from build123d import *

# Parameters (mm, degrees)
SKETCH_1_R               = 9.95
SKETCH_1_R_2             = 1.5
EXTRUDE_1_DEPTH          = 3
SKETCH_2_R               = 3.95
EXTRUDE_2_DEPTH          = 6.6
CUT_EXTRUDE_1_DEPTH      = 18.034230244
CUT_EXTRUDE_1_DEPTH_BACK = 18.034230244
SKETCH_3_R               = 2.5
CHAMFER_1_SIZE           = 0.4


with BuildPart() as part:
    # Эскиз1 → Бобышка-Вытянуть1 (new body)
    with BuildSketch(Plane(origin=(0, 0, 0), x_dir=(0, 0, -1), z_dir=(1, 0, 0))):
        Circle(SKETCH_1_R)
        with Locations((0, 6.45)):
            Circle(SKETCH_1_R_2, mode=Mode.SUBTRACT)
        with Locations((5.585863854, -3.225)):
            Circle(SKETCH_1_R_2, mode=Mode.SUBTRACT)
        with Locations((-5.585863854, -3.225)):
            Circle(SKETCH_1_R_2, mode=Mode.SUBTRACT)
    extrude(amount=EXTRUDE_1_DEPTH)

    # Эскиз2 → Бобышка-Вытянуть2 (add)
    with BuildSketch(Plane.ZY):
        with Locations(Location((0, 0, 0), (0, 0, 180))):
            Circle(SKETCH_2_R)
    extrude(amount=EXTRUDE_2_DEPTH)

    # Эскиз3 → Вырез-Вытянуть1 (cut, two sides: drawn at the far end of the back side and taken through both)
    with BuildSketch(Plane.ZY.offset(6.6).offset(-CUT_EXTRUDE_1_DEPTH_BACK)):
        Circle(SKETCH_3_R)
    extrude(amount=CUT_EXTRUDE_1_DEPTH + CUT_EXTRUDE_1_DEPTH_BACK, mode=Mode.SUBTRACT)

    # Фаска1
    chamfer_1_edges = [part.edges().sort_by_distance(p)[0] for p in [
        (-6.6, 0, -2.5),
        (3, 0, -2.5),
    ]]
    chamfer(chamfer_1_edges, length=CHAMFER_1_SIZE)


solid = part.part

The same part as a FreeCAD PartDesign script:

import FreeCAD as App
import Part
import Sketcher
from FreeCAD import Vector
Q = App.Units.Quantity


def edges_at(feature, points):
    """Names of the edges that pass closest to the given points."""
    edges = feature.Shape.Edges
    near = lambda p: min(range(len(edges)), key=lambda i: edges[i].distToShape(Part.Vertex(*p))[0])
    return sorted({f"Edge{near(p) + 1}" for p in points})

doc = App.newDocument("Part")
body = doc.addObject("PartDesign::Body", "Body")

sketch1 = body.newObject("Sketcher::SketchObject", "Sketch")
sketch1.AttachmentSupport = (doc.getObject("YZ_Plane"), [""])
sketch1.MapMode = "FlatFace"
sketch1.addGeometry([
    Part.Circle(Vector(0, 0, 0), Vector(0, 0, 1), 9.9),
    Part.Circle(Vector(-3.2, 5.6, 0), Vector(0, 0, 1), 1.5),
    Part.Circle(Vector(-3.2, -5.6, 0), Vector(0, 0, 1), 1.5),
    Part.Circle(Vector(6.5, 0, 0), Vector(0, 0, 1), 1.5),
], False)
sketch1.addConstraint([
    Sketcher.Constraint("Coincident", 0, 3, -1, 1),
    Sketcher.Constraint("Equal", 1, 2),
    Sketcher.Constraint("Equal", 2, 3),
    Sketcher.Constraint("Symmetric", 1, 3, 2, 3, -1),
    Sketcher.Constraint("PointOnObject", 3, 3, -1),
    Sketcher.Constraint("Diameter", 1, Q("3 mm")),
    Sketcher.Constraint("Diameter", 0, Q("19.9 mm")),
    Sketcher.Constraint("DistanceX", -1, 1, 3, 3, Q("6.45 mm")),
    Sketcher.Constraint("DistanceX", 1, 3, -1, 1, Q("3.225 mm")),
    Sketcher.Constraint("DistanceY", -1, 1, 1, 3, Q("5.585864 mm")),
])
pad1 = body.newObject("PartDesign::Pad", "Pad")
pad1.Profile = sketch1
pad1.Length = 3

sketch2 = body.newObject("Sketcher::SketchObject", "Sketch001")
sketch2.AttachmentSupport = (doc.getObject("YZ_Plane"), [""])
sketch2.MapMode = "FlatFace"
sketch2.addGeometry(Part.Circle(Vector(0, 0, 0), Vector(0, 0, 1), 4), False)
sketch2.addConstraint([
    Sketcher.Constraint("Coincident", 0, 3, -1, 1),
    Sketcher.Constraint("Diameter", 0, Q("7.9 mm")),
])
pad2 = body.newObject("PartDesign::Pad", "Pad001")
pad2.Profile = sketch2
pad2.Length = 6.6
pad2.Reversed = True

sketch3 = body.newObject("Sketcher::SketchObject", "Sketch002")
sketch3.AttachmentSupport = (doc.getObject("YZ_Plane"), [""])
sketch3.MapMode = "FlatFace"
sketch3.AttachmentOffset = App.Placement(Vector(0, 0, -6.6), App.Rotation())
sketch3.addGeometry(Part.Circle(Vector(0, 0, 0), Vector(0, 0, 1), 2.5), False)
sketch3.addConstraint([
    Sketcher.Constraint("Coincident", 0, 3, -1, 1),
    Sketcher.Constraint("Diameter", 0, Q("5 mm")),
])
pocket1 = body.newObject("PartDesign::Pocket", "Pocket")
pocket1.Profile = sketch3
pocket1.Type = "ThroughAll"
pocket1.Midplane = True
doc.recompute()

chamfer = body.newObject("PartDesign::Chamfer", "Chamfer")
chamfer.Base = (pocket1, edges_at(pocket1, [(-6.6, 0, -2.5), (3, 0, -2.5)]))
chamfer.Size = 0.4

doc.recompute()
